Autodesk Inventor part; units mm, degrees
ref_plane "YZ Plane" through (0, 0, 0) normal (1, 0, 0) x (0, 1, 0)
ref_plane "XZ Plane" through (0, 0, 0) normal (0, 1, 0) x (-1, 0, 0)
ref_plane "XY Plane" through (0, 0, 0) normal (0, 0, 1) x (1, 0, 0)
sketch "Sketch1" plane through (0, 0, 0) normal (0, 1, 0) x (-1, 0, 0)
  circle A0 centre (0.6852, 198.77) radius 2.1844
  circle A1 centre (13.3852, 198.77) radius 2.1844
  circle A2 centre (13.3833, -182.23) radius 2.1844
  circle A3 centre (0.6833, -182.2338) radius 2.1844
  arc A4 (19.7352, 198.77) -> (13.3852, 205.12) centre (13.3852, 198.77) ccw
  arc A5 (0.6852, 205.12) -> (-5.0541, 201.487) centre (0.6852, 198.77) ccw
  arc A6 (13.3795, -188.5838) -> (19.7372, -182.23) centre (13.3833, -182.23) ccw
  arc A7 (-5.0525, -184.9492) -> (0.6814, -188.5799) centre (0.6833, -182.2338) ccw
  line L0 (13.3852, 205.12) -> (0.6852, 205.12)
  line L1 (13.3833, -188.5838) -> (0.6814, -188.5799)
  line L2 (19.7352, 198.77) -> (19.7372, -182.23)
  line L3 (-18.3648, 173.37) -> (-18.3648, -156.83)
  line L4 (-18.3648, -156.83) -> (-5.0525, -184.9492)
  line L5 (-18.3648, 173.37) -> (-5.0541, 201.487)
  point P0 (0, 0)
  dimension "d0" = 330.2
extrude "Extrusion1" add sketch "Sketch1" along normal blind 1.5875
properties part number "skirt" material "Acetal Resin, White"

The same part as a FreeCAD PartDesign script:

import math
import FreeCAD as App
import Part
import Sketcher
Q = App.Units.Quantity

doc = App.newDocument("Part")
body = doc.addObject("PartDesign::Body", "Body")

# Sketch on XZ plane
sketch1 = body.newObject("Sketcher::SketchObject", "Sketch")
sketch1.AttachmentSupport = (doc.getObject("XZ_Plane"), [""])
sketch1.MapMode = "FlatFace"
sketch1.addGeometry(Part.LineSegment(App.Vector(-19.7372, -182.23, 0), App.Vector(-19.7352, 198.77, 0)), False)
sketch1.addGeometry(Part.ArcOfCircle(Part.Circle(App.Vector(-13.3852, 198.77, 0), App.Vector(0, 0, 1), 6.35), math.radians(90), math.radians(180)), False)
sketch1.addGeometry(Part.LineSegment(App.Vector(-13.3852, 205.12, 0), App.Vector(-0.6852, 205.12, 0)), False)
sketch1.addGeometry(Part.ArcOfCircle(Part.Circle(App.Vector(-0.6852, 198.77, 0), App.Vector(0, 0, 1), 6.35), math.radians(25.333), math.radians(90)), False)
sketch1.addGeometry(Part.LineSegment(App.Vector(5.0541, 201.487, 0), App.Vector(18.3648, 173.37, 0)), False)
sketch1.addGeometry(Part.LineSegment(App.Vector(18.3648, 173.37, 0), App.Vector(18.3648, -156.83, 0)), False)
sketch1.addGeometry(Part.LineSegment(App.Vector(18.3648, -156.83, 0), App.Vector(5.0525, -184.9492, 0)), False)
sketch1.addGeometry(Part.ArcOfCircle(Part.Circle(App.Vector(-0.6833, -182.2338, 0), App.Vector(0, 0, 1), 6.346085), math.radians(-89.982846), math.radians(-25.333464)), False)
sketch1.addGeometry(Part.LineSegment(App.Vector(-0.6814, -188.5799, 0), App.Vector(-13.3795, -188.583799, 0)), False)
sketch1.addGeometry(Part.ArcOfCircle(Part.Circle(App.Vector(-13.3833, -182.23, 0), App.Vector(0, 0, 1), 6.353801), math.radians(180), math.radians(270.034267)), False)
sketch1.addGeometry(Part.Circle(App.Vector(-0.6833, -182.2338, 0), App.Vector(0, 0, 1), 2.1844), False)
sketch1.addGeometry(Part.Circle(App.Vector(-13.3833, -182.23, 0), App.Vector(0, 0, 1), 2.1844), False)
sketch1.addGeometry(Part.Circle(App.Vector(-0.6852, 198.77, 0), App.Vector(0, 0, 1), 2.1844), False)
sketch1.addGeometry(Part.Circle(App.Vector(-13.3852, 198.77, 0), App.Vector(0, 0, 1), 2.1844), False)
sketch1.addConstraint(Sketcher.Constraint("Coincident", 0, 2, 1, 2))
sketch1.addConstraint(Sketcher.Constraint("Coincident", 1, 1, 2, 1))
sketch1.addConstraint(Sketcher.Constraint("Coincident", 2, 2, 3, 2))
sketch1.addConstraint(Sketcher.Constraint("Coincident", 3, 1, 4, 1))
sketch1.addConstraint(Sketcher.Constraint("Coincident", 4, 2, 5, 1))
sketch1.addConstraint(Sketcher.Constraint("Coincident", 5, 2, 6, 1))
sketch1.addConstraint(Sketcher.Constraint("Coincident", 6, 2, 7, 2))
sketch1.addConstraint(Sketcher.Constraint("Coincident", 7, 1, 8, 1))
sketch1.addConstraint(Sketcher.Constraint("Coincident", 8, 2, 9, 2))
sketch1.addConstraint(Sketcher.Constraint("Coincident", 9, 1, 0, 1))
sketch1.addConstraint(Sketcher.Constraint("Horizontal", 2))
sketch1.addConstraint(Sketcher.Constraint("Vertical", 5))
sketch1.addConstraint(Sketcher.Constraint("Coincident", 10, 3, 7, 3))
sketch1.addConstraint(Sketcher.Constraint("Coincident", 11, 3, 9, 3))
sketch1.addConstraint(Sketcher.Constraint("Coincident", 12, 3, 3, 3))
sketch1.addConstraint(Sketcher.Constraint("Coincident", 13, 3, 1, 3))
sketch1.addConstraint(Sketcher.Constraint("DistanceY", 5, 2, 5, 1, Q("13 in")))
sketch1.addConstraint(Sketcher.Constraint("Radius", 1, Q("0.25 in")))
sketch1.addConstraint(Sketcher.Constraint("Radius", 3, Q("0.25 in")))
sketch1.addConstraint(Sketcher.Constraint("Distance", 0, Q("15 in")))
sketch1.addConstraint(Sketcher.Constraint("Diameter", 10, Q("0.172 in")))
sketch1.addConstraint(Sketcher.Constraint("Diameter", 11, Q("0.172 in")))
sketch1.addConstraint(Sketcher.Constraint("Diameter", 12, Q("0.172 in")))
sketch1.addConstraint(Sketcher.Constraint("Diameter", 13, Q("0.172 in")))
sketch1.addConstraint(Sketcher.Constraint("DistanceX", 2, 1, 2, 2, Q("0.5 in")))
sketch1.addConstraint(Sketcher.Constraint("DistanceY", 9, 3, 1, 3, Q("15 in")))
sketch1.addConstraint(Sketcher.Constraint("DistanceY", 9, 3, 0, 2, Q("15 in")))
sketch1.addConstraint(Sketcher.Constraint("DistanceY", 4, 2, 3, 3, Q("1 in")))
sketch1.addConstraint(Sketcher.Constraint("DistanceX", 1, 3, 3, 3, Q("0.5 in")))
sketch1.addConstraint(Sketcher.Constraint("DistanceX", 9, 3, 7, 3, Q("0.5 in")))
sketch1.addConstraint(Sketcher.Constraint("DistanceX", 1, 1, 3, 3, Q("0.5 in")))
sketch1.addConstraint(Sketcher.Constraint("Radius", 7, 6.346))
sketch1.addConstraint(Sketcher.Constraint("Radius", 9, 6.3538))
sketch1.addConstraint(Sketcher.Constraint("DistanceX", 3, 3, 4, 2, Q("0.75 in")))
sketch1.addConstraint(Sketcher.Constraint("DistanceY", 7, 1, 9, 3, Q("0.25 in")))
sketch1.addConstraint(Sketcher.Constraint("DistanceY", -1, 1, 1, 3, Q("7.8256 in")))
sketch1.addConstraint(Sketcher.Constraint("DistanceX", 7, 3, -1, 1, Q("0.0269 in")))
sketch1.addConstraint(Sketcher.Constraint("DistanceY", 6, 2, 7, 3, Q("0.1069 in")))
sketch1.addConstraint(Sketcher.Constraint("DistanceX", 6, 2, 5, 2, Q("0.5241 in")))
sketch1.addConstraint(Sketcher.Constraint("DistanceX", 9, 1, 8, 2, Q("0.2503 in")))
sketch1.addConstraint(Sketcher.Constraint("Distance", 4, 31.1085))
sketch1.addConstraint(Sketcher.Constraint("Distance", 8, 12.698))
pad1 = body.newObject("PartDesign::Pad", "Pad")
pad1.Profile = sketch1
pad1.Length = Q("0.0625 in")
pad1.Reversed = True

doc.recompute()
